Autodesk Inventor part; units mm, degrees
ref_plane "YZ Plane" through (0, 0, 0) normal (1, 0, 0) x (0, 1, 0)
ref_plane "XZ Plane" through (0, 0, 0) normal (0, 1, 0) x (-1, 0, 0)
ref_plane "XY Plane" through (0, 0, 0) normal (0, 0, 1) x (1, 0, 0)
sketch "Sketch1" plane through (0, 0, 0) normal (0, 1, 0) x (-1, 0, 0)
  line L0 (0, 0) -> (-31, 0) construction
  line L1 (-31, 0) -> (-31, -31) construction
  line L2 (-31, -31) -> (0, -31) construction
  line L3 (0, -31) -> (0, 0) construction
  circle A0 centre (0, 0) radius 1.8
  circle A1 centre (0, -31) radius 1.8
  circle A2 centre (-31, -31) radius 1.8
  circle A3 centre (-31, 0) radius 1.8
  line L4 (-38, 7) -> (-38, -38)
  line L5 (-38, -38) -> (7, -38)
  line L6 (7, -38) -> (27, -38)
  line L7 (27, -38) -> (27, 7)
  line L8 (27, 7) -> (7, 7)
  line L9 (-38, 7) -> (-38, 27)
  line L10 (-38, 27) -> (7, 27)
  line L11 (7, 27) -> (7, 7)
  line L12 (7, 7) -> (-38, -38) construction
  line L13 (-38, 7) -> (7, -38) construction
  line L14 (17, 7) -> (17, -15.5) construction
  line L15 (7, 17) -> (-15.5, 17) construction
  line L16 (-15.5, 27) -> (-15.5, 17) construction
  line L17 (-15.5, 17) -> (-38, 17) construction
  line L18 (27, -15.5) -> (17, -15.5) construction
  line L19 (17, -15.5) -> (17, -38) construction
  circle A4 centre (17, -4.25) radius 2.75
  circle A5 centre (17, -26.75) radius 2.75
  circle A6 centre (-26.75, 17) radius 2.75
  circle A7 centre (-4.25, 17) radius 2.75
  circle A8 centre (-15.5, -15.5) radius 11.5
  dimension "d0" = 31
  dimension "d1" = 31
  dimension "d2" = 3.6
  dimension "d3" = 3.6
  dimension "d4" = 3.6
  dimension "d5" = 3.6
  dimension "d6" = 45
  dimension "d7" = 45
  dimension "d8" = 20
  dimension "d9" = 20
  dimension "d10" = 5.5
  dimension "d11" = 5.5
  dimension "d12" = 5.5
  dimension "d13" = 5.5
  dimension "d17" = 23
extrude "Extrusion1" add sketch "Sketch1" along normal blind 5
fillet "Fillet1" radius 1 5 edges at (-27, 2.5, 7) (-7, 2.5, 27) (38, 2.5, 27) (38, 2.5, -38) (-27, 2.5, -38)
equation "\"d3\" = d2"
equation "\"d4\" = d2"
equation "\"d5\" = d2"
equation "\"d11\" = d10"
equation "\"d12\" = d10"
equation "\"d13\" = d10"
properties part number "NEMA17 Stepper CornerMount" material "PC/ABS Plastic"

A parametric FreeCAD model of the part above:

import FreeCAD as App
import Part
import Sketcher
from FreeCAD import Vector
Q = App.Units.Quantity


def edges_at(feature, points):
    """Names of the edges that pass closest to the given points."""
    edges = feature.Shape.Edges
    near = lambda p: min(range(len(edges)), key=lambda i: edges[i].distToShape(Part.Vertex(*p))[0])
    return sorted({f"Edge{near(p) + 1}" for p in points})


def add_polygon(sketch, points):
    """Adds a closed chain of lines whose ends are joined by coincident constraints."""
    first, n = sketch.GeometryCount, len(points)
    for a, b in zip(points, points[1:] + points[:1]):
        sketch.addGeometry(Part.LineSegment(App.Vector(*a, 0), App.Vector(*b, 0)), False)
    for i in range(n):
        sketch.addConstraint(Sketcher.Constraint("Coincident", first + i, 2, first + (i + 1) % n, 1))

doc = App.newDocument("Part")
body = doc.addObject("PartDesign::Body", "Body")

# Sketch on XZ plane
sketch1 = doc.addObject("Sketcher::SketchObject", "Sketch")
body.addObject(sketch1)
sketch1.AttachmentSupport = (doc.XZ_Plane, [""])
sketch1.MapMode = "FlatFace"
add_polygon(sketch1, [(38, 27), (38, -38), (-27, -38), (-27, 7), (-7, 7), (-7, 27)])  # lines 0-5
sketch1.addGeometry(Part.Circle(Vector(31, -31, 0), Vector(0, 0, 1), 1.8), False)  # 6
sketch1.addGeometry(Part.Circle(Vector(15.5, -15.5, 0), Vector(0, 0, 1), 11.5), False)  # 7
sketch1.addGeometry(Part.Circle(Vector(0, -31, 0), Vector(0, 0, 1), 1.8), False)  # 8
sketch1.addGeometry(Part.Circle(Vector(-17, -26.8, 0), Vector(0, 0, 1), 2.8), False)  # 9
sketch1.addGeometry(Part.Circle(Vector(31, 0, 0), Vector(0, 0, 1), 1.8), False)  # 10
sketch1.addGeometry(Part.Circle(Vector(26.8, 17, 0), Vector(0, 0, 1), 2.8), False)  # 11
sketch1.addGeometry(Part.Circle(Vector(0, 0, 0), Vector(0, 0, 1), 1.8), False)  # 12
sketch1.addGeometry(Part.Circle(Vector(-17, -4.2, 0), Vector(0, 0, 1), 2.8), False)  # 13
sketch1.addGeometry(Part.Circle(Vector(4.2, 17, 0), Vector(0, 0, 1), 2.8), False)  # 14
sketch1.addConstraint([
    Sketcher.Constraint("Vertical", 0),
    Sketcher.Constraint("Horizontal", 1),
    Sketcher.Constraint("Vertical", 2),
    Sketcher.Constraint("Horizontal", 3),
    Sketcher.Constraint("Vertical", 4),
    Sketcher.Constraint("Horizontal", 5),
    Sketcher.Constraint("Coincident", 12, 3, -1, 1),
    Sketcher.Constraint("Equal", 6, 8),
    Sketcher.Constraint("Equal", 8, 10),
    Sketcher.Constraint("Equal", 9, 11),
    Sketcher.Constraint("Equal", 10, 12),
    Sketcher.Constraint("Equal", 11, 13),
    Sketcher.Constraint("Equal", 13, 14),
    Sketcher.Constraint("PointOnObject", 8, 3, -2),
    Sketcher.Constraint("PointOnObject", 10, 3, -1),
    Sketcher.Constraint("Horizontal", 6, 3, 8, 3),
    Sketcher.Constraint("Horizontal", 11, 3, 14, 3),
    Sketcher.Constraint("Vertical", 6, 3, 10, 3),
    Sketcher.Constraint("Vertical", 9, 3, 13, 3),
    Sketcher.Constraint("Equal", 1, 0),
    Sketcher.Constraint("Equal", 5, 2),
    Sketcher.Constraint("Diameter", 7, Q("23 mm")),
    Sketcher.Constraint("Diameter", 6, Q("3.6 mm")),
    Sketcher.Constraint("Diameter", 9, Q("5.5 mm")),
    Sketcher.Constraint("DistanceX", 3, 1, 3, 2, Q("20 mm")),
    Sketcher.Constraint("DistanceX", 5, 1, 5, 2, Q("45 mm")),
    Sketcher.Constraint("DistanceX", -1, 1, 6, 3, Q("31 mm")),
    Sketcher.Constraint("DistanceY", 6, 3, -1, 1, Q("31 mm")),
    Sketcher.Constraint("DistanceX", 9, 3, -1, 1, Q("17 mm")),
    Sketcher.Constraint("DistanceY", -1, 1, 11, 3, Q("17 mm")),
    Sketcher.Constraint("DistanceX", -1, 1, 0, 2, Q("38 mm")),
    Sketcher.Constraint("DistanceY", 0, 2, -1, 1, Q("38 mm")),
    Sketcher.Constraint("DistanceX", -1, 1, 7, 3, Q("15.5 mm")),
    Sketcher.Constraint("DistanceY", 7, 3, -1, 1, Q("15.5 mm")),
    Sketcher.Constraint("DistanceY", 9, 3, 13, 3, Q("22.5 mm")),
    Sketcher.Constraint("DistanceX", 14, 3, 11, 3, Q("22.5 mm")),
    Sketcher.Constraint("DistanceY", 9, 3, -1, 1, Q("26.75 mm")),
    Sketcher.Constraint("DistanceX", -1, 1, 11, 3, Q("26.75 mm")),
])
pad1 = doc.addObject("PartDesign::Pad", "Pad")
body.addObject(pad1)
pad1.Profile = sketch1
pad1.Length = 5
pad1.Reversed = True
doc.recompute()

fillet = doc.addObject("PartDesign::Fillet", "Fillet")
body.addObject(fillet)
fillet.Base = (pad1, edges_at(pad1, [
    (-27, 2.5, 7),
    (-7, 2.5, 27),
    (38, 2.5, 27),
    (38, 2.5, -38),
    (-27, 2.5, -38),
]))
fillet.Radius = 1

doc.recompute()
